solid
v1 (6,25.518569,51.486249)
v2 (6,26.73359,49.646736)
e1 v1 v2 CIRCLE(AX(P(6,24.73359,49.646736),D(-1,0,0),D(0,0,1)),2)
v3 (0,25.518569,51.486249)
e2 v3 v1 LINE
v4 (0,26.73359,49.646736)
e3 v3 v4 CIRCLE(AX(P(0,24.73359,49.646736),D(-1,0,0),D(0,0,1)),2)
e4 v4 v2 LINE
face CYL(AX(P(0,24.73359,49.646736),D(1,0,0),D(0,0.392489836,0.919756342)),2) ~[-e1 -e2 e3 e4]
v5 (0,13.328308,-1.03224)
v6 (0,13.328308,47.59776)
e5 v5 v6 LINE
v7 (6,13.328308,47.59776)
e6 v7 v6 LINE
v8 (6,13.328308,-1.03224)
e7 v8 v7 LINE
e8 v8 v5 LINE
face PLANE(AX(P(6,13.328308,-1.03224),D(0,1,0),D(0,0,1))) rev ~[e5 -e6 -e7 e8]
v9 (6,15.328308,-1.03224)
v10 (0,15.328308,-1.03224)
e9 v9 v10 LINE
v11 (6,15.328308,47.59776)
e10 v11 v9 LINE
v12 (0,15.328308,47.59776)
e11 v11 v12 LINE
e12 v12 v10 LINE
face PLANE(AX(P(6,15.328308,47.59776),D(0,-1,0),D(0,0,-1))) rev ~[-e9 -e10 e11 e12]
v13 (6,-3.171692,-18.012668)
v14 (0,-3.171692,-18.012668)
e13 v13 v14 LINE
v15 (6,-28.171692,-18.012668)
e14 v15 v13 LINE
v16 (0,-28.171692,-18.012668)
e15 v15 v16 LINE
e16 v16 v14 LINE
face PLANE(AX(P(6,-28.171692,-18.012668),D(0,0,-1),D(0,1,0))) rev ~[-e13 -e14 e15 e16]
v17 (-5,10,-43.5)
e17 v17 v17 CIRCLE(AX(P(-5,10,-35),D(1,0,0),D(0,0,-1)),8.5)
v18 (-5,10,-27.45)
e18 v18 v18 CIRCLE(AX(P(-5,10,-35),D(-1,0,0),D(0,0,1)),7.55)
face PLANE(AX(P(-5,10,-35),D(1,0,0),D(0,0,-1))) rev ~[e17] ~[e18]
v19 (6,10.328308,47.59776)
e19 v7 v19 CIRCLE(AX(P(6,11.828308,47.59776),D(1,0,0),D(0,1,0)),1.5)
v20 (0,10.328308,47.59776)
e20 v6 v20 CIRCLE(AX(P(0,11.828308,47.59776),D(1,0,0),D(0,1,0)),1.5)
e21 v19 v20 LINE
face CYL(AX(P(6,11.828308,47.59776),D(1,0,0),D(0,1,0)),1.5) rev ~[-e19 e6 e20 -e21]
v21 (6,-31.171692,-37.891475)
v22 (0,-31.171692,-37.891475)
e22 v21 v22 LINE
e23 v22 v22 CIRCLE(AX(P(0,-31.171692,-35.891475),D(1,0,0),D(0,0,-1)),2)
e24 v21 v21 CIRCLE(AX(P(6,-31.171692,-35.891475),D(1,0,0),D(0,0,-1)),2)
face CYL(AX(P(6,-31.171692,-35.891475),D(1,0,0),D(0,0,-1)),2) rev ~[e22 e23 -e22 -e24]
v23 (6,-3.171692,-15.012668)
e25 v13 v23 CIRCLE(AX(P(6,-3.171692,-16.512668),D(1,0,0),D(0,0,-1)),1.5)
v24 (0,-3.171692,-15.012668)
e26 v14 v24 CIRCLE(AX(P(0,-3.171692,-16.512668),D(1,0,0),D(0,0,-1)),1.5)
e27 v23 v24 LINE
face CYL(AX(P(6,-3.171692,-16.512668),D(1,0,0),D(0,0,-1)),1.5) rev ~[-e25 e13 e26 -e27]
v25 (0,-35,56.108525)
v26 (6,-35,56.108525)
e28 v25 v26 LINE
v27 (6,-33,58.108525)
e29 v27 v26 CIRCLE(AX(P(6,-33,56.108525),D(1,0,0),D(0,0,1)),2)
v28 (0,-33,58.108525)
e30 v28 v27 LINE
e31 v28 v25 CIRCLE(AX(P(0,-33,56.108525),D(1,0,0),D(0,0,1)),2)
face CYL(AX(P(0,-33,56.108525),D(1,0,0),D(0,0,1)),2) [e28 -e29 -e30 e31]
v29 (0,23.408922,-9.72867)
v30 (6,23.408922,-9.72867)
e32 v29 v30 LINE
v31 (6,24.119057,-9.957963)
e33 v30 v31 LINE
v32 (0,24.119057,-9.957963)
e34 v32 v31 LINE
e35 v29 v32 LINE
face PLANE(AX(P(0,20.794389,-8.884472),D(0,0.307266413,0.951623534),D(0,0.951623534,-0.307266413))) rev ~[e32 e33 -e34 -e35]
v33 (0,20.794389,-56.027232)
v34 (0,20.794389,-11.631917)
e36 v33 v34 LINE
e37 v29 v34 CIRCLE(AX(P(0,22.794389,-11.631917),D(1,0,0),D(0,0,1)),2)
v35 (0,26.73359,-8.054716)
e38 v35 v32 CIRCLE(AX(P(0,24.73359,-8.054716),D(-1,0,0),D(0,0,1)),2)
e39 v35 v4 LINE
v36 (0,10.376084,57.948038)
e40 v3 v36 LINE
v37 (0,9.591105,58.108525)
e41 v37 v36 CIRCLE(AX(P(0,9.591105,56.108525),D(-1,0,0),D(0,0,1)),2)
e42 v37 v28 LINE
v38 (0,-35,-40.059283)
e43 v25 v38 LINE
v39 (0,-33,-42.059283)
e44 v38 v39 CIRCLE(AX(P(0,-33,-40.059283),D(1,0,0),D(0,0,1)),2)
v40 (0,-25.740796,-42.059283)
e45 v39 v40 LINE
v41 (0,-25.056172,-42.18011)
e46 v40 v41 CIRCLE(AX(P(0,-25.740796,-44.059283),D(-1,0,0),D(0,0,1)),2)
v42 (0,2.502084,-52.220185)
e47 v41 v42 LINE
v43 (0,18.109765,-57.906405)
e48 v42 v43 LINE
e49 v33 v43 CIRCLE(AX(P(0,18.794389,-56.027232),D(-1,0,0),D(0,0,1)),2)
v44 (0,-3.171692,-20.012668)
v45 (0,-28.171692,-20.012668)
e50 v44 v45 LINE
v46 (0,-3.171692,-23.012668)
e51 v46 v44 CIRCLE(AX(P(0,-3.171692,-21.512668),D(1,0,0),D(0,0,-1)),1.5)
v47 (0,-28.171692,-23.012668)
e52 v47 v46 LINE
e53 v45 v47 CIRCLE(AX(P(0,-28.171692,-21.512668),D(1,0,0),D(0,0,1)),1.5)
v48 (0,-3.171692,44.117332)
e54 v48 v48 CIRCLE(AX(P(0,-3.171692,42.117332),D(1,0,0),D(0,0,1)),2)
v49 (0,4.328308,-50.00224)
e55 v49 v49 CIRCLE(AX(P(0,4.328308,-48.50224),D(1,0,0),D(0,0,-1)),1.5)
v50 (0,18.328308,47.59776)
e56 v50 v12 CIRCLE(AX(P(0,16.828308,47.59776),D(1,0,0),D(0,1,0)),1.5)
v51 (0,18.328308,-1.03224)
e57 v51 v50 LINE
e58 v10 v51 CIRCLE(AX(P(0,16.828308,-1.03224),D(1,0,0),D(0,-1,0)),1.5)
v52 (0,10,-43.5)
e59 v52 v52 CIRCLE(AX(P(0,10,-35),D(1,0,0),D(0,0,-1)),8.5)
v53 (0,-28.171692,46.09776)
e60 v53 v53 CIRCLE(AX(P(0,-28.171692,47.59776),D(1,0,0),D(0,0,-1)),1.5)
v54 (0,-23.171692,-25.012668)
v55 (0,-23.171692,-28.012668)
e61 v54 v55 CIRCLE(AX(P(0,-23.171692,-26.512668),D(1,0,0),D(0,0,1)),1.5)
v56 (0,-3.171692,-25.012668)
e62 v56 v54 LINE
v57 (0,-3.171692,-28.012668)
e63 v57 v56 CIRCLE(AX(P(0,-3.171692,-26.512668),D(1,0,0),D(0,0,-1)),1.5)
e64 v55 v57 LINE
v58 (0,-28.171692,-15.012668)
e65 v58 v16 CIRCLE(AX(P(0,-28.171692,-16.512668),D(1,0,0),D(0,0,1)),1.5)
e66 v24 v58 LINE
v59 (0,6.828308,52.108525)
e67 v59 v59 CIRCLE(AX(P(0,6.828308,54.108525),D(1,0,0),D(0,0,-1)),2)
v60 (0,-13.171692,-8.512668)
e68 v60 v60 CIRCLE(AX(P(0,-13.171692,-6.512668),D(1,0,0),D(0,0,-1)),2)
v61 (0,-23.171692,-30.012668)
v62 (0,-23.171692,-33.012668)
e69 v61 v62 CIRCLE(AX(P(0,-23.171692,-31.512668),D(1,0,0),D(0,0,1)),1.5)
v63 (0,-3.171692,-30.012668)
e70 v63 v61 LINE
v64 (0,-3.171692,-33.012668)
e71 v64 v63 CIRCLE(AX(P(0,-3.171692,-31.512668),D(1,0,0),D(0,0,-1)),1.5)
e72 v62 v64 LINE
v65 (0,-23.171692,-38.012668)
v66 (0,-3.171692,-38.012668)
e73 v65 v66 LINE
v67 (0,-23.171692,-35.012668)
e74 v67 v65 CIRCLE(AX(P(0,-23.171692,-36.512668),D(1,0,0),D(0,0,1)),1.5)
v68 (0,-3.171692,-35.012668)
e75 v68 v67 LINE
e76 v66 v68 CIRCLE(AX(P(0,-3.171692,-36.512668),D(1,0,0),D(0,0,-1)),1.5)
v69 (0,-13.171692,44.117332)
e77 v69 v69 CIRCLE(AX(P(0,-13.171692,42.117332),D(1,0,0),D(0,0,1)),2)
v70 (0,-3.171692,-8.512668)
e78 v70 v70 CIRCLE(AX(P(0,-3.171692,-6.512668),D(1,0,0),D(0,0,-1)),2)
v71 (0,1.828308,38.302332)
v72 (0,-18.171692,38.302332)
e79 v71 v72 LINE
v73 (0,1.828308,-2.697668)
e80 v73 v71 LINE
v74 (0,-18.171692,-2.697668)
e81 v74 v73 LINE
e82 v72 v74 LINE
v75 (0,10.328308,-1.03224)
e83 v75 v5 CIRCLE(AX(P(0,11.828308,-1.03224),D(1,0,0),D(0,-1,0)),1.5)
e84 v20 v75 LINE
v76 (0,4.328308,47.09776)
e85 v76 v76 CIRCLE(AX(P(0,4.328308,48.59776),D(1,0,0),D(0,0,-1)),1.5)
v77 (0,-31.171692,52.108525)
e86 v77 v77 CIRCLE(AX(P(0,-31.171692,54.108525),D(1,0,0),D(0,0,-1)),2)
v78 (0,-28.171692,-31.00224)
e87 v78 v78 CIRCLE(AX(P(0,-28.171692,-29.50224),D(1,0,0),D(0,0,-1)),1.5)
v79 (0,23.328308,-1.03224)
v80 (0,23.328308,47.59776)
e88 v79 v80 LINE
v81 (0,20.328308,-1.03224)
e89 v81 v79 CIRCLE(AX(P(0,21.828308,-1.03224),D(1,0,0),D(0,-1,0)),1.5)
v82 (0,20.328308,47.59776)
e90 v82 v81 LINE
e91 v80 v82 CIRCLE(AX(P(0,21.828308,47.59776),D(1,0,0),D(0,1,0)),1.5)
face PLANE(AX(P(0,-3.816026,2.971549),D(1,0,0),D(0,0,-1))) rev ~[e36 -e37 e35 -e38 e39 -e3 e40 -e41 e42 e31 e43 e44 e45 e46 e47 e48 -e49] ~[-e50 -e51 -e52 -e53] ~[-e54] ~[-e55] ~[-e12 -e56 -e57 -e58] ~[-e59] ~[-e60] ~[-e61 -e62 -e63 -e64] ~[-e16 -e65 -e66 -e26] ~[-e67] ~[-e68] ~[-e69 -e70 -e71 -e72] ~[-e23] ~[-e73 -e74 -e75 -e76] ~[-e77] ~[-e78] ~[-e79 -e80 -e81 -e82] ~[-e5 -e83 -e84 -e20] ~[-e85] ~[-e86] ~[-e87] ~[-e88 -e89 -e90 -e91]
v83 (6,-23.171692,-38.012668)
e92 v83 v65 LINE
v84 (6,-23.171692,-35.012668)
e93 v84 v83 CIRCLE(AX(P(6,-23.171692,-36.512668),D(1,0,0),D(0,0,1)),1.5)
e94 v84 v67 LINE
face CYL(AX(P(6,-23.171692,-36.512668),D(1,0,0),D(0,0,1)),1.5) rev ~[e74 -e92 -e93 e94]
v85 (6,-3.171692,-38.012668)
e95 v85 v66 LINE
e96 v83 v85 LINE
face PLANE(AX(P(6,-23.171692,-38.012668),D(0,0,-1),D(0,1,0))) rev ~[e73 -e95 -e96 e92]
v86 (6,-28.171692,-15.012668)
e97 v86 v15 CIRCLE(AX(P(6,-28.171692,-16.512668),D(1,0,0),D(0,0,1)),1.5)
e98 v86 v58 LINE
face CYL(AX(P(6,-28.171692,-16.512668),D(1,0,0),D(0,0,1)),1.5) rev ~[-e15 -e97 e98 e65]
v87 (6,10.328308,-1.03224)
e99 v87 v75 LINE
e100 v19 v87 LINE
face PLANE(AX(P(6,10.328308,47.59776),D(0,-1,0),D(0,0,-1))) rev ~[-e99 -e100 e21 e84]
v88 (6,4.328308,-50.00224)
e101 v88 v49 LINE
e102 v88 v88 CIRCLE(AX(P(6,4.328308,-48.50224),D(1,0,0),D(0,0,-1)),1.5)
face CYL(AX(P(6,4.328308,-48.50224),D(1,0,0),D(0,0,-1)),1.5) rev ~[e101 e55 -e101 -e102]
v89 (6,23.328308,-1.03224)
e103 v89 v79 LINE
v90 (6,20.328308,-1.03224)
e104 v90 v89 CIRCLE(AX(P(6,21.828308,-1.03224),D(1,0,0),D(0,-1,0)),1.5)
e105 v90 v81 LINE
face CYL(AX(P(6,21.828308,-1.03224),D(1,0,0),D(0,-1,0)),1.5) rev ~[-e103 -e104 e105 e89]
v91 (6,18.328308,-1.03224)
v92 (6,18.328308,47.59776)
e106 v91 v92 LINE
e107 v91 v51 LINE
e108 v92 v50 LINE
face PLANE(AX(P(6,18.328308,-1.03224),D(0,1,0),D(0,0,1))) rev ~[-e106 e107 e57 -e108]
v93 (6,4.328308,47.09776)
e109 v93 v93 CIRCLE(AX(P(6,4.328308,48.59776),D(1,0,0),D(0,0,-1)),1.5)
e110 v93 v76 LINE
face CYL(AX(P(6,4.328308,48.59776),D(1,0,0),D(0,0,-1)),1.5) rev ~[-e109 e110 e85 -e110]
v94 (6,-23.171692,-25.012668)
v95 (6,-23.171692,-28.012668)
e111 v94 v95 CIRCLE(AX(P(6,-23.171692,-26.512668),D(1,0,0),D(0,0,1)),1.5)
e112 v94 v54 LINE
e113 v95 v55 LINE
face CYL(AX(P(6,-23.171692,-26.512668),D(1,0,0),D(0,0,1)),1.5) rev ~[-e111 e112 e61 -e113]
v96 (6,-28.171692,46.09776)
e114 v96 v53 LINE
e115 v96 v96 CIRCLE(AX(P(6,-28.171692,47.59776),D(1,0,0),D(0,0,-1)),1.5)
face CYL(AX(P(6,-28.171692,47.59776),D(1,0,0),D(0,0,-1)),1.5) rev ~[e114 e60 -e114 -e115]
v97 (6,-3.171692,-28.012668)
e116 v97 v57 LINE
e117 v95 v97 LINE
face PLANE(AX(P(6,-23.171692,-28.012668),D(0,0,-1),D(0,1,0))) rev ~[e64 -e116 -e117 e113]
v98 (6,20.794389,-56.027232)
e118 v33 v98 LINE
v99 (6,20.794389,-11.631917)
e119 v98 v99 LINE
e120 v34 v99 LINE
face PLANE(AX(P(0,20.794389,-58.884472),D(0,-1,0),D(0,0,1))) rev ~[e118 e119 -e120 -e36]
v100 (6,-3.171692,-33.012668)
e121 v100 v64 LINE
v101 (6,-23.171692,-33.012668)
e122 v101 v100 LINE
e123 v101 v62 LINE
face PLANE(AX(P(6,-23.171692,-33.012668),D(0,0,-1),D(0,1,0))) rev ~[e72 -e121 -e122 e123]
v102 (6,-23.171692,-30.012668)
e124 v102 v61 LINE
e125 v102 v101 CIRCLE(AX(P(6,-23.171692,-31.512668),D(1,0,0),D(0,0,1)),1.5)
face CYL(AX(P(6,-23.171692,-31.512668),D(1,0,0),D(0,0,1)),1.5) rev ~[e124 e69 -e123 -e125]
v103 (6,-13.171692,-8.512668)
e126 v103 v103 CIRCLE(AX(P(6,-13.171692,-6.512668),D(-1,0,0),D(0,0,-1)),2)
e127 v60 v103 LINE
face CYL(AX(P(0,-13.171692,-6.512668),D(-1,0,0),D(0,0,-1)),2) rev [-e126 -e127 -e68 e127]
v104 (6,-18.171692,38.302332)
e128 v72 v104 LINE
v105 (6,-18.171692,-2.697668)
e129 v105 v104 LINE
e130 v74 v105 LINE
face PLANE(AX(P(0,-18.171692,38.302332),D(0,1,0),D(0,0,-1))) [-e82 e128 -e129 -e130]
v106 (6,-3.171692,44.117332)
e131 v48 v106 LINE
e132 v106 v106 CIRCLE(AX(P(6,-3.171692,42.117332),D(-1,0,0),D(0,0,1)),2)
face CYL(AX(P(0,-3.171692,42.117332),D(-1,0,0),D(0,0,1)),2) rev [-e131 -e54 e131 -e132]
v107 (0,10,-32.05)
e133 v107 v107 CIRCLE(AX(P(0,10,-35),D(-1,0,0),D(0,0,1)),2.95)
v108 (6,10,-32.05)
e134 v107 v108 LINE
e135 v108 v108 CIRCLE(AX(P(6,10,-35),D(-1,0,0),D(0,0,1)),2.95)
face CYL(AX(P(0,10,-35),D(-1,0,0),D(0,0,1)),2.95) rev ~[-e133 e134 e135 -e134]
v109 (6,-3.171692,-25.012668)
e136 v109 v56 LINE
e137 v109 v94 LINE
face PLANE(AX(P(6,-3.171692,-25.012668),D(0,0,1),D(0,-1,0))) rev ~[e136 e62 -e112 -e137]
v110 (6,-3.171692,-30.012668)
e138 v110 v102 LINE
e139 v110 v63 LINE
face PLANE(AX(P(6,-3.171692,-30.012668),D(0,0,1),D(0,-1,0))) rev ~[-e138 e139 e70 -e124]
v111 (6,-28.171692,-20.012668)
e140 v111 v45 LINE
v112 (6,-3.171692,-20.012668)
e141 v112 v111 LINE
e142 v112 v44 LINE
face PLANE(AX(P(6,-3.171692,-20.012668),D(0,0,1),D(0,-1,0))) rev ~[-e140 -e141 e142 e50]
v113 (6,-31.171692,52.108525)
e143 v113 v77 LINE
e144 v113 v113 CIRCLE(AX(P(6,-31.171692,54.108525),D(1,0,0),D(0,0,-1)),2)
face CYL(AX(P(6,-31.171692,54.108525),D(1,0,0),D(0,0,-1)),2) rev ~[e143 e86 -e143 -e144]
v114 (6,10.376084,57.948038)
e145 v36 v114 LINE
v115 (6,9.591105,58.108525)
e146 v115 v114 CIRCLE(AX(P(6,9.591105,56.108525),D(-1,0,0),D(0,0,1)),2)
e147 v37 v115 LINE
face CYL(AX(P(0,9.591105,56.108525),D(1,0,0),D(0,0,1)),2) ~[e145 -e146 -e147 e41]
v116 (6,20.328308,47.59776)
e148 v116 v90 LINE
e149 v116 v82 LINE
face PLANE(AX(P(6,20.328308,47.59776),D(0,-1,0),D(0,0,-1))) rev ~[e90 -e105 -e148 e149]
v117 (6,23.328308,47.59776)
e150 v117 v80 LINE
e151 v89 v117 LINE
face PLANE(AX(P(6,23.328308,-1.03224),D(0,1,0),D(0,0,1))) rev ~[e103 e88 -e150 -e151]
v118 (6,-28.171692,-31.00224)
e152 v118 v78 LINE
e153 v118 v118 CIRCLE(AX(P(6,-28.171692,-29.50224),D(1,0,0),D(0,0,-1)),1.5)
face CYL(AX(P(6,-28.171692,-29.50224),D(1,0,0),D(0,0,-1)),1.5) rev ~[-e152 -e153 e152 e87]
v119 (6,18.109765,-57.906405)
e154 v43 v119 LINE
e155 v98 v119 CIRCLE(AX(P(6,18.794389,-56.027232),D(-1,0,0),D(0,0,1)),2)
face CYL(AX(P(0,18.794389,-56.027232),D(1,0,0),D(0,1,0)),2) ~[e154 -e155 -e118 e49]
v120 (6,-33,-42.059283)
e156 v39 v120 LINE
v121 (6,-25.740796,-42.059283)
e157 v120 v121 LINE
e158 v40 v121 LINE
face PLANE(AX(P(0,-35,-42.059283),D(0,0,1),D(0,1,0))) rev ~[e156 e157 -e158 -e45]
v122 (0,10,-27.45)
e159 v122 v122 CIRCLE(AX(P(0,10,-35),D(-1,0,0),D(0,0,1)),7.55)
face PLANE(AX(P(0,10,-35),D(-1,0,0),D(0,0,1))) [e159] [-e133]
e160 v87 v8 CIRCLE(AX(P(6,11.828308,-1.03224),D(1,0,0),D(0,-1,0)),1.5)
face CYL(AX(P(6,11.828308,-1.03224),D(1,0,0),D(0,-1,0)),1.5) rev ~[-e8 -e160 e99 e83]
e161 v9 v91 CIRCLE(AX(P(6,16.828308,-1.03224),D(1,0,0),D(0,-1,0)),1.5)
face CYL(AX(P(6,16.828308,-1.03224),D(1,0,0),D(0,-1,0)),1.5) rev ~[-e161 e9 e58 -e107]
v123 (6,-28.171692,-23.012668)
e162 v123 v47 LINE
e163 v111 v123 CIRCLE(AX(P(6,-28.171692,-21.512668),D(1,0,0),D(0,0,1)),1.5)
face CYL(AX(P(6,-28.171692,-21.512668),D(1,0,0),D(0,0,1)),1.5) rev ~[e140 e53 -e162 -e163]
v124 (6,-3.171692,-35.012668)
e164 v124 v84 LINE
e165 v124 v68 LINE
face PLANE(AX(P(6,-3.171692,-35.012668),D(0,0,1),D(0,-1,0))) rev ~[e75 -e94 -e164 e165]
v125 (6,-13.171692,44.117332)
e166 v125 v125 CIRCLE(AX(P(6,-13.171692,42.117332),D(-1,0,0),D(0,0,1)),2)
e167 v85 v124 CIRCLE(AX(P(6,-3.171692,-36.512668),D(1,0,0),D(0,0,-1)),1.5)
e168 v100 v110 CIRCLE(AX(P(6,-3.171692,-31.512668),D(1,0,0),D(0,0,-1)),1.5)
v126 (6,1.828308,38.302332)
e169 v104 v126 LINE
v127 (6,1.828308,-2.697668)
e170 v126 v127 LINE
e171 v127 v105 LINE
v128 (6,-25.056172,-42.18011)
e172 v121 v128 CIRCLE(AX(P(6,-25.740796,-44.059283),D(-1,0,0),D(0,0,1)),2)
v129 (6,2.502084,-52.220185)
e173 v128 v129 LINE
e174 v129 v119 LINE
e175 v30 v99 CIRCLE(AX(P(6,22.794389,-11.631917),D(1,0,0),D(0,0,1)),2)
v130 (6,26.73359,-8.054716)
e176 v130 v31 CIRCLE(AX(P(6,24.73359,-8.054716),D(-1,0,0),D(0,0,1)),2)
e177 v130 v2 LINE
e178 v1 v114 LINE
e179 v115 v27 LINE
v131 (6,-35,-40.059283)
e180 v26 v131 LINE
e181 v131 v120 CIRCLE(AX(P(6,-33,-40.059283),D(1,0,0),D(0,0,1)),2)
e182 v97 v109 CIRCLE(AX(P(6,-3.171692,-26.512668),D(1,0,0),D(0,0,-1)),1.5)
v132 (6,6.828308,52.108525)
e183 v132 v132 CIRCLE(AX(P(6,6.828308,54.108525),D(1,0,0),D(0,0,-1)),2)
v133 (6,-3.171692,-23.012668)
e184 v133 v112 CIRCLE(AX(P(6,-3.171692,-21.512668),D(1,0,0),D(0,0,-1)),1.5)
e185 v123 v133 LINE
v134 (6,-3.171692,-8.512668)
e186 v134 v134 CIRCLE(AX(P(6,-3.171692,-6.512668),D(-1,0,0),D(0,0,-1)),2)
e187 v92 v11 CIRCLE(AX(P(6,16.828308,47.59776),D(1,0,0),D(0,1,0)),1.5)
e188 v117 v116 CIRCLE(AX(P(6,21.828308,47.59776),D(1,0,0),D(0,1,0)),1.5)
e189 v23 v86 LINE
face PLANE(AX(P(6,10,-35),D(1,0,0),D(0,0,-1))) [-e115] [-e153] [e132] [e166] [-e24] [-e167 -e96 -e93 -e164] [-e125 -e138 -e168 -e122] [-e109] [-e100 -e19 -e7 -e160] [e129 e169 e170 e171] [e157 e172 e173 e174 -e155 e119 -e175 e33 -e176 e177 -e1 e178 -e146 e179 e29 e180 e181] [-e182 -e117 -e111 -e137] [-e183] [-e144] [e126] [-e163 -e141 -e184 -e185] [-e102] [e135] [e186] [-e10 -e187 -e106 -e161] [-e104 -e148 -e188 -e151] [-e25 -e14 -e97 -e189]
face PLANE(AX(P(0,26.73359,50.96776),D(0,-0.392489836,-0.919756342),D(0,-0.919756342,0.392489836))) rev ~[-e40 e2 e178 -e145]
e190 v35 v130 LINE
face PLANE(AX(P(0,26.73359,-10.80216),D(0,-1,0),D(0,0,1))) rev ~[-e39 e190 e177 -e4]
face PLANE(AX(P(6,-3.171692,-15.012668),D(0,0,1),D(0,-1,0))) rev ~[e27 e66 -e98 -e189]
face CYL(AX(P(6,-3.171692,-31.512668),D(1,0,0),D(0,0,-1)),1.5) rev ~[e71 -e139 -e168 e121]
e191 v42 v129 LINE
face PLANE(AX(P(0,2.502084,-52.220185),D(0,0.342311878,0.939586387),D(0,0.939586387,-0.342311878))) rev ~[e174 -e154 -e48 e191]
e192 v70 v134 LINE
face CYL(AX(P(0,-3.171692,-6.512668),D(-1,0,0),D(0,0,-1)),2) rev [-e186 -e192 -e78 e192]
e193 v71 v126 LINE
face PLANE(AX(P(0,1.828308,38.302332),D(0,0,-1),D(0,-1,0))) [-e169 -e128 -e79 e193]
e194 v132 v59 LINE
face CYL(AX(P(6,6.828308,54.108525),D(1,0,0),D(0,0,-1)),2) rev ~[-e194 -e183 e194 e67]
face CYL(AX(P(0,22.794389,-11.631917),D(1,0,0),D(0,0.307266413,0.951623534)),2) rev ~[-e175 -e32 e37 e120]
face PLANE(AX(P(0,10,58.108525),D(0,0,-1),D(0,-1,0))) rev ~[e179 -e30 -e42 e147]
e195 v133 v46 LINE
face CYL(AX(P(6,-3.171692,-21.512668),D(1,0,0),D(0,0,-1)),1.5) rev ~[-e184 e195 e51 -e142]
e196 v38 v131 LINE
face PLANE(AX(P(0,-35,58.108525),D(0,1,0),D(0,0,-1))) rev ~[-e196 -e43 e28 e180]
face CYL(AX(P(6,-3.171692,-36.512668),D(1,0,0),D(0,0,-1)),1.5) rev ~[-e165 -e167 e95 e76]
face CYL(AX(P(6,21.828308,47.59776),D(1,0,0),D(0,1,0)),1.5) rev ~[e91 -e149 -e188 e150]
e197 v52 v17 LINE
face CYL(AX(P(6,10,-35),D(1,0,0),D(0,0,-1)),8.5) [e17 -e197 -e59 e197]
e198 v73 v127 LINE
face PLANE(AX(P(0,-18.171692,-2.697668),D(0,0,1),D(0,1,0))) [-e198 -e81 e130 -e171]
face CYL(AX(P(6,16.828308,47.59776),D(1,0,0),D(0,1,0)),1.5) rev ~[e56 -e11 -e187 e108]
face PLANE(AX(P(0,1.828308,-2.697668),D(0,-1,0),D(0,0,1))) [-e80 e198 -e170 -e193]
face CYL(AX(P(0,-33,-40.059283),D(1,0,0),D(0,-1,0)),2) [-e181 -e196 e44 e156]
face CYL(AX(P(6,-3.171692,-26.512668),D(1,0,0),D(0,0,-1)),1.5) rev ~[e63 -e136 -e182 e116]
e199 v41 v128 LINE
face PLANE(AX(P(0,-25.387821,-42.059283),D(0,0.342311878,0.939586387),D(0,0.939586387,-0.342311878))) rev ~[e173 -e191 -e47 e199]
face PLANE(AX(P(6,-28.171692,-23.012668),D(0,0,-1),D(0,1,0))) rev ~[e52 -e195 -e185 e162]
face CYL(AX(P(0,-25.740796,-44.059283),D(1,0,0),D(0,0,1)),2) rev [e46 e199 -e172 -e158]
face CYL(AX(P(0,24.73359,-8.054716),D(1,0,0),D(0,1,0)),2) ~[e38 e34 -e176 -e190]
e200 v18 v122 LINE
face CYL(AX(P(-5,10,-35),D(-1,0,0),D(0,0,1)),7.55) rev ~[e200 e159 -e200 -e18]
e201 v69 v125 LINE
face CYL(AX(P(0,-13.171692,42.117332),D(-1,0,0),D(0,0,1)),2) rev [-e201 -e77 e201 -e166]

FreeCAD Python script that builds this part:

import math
import FreeCAD as App
import Part
import Sketcher
Q = App.Units.Quantity


def edges_at(feature, points):
    """Names of the edges that pass closest to the given points."""
    edges = feature.Shape.Edges
    near = lambda p: min(range(len(edges)), key=lambda i: edges[i].distToShape(Part.Vertex(*p))[0])
    return sorted({f"Edge{near(p) + 1}" for p in points})

doc = App.newDocument("Part")
body = doc.addObject("PartDesign::Body", "Body")

# Sketch on YZ plane
sketch1 = doc.addObject("Sketcher::SketchObject", "Sketch")
body.addObject(sketch1)
sketch1.AttachmentSupport = (doc.YZ_Plane, [""])
sketch1.MapMode = "FlatFace"
sketch1.addGeometry(Part.LineSegment(App.Vector(10, 58.108525, 0), App.Vector(-35, 58.108525, 0)), False)
sketch1.addGeometry(Part.LineSegment(App.Vector(-35, 58.108525, 0), App.Vector(-35, -42.059283, 0)), False)
sketch1.addGeometry(Part.LineSegment(App.Vector(-35, -42.059283, 0), App.Vector(-25.387821, -42.059283, 0)), False)
sketch1.addGeometry(Part.LineSegment(App.Vector(-25.387821, -42.059283, 0), App.Vector(2.502084, -52.220185, 0)), False)
sketch1.addGeometry(Part.LineSegment(App.Vector(2.502084, -52.220185, 0), App.Vector(20.794389, -58.884472, 0)), False)
sketch1.addGeometry(Part.LineSegment(App.Vector(20.794389, -58.884472, 0), App.Vector(20.794389, -8.884472, 0)), False)
sketch1.addGeometry(Part.LineSegment(App.Vector(20.794389, -8.884472, 0), App.Vector(26.73359, -10.80216, 0)), False)
sketch1.addGeometry(Part.LineSegment(App.Vector(26.73359, -10.80216, 0), App.Vector(26.73359, 50.96776, 0)), False)
sketch1.addGeometry(Part.LineSegment(App.Vector(26.73359, 50.96776, 0), App.Vector(10, 58.108525, 0)), False)
sketch1.addConstraint(Sketcher.Constraint("Coincident", 0, 2, 1, 1))
sketch1.addConstraint(Sketcher.Constraint("Coincident", 1, 2, 2, 1))
sketch1.addConstraint(Sketcher.Constraint("Coincident", 2, 2, 3, 1))
sketch1.addConstraint(Sketcher.Constraint("Coincident", 3, 2, 4, 1))
sketch1.addConstraint(Sketcher.Constraint("Coincident", 4, 2, 5, 1))
sketch1.addConstraint(Sketcher.Constraint("Coincident", 5, 2, 6, 1))
sketch1.addConstraint(Sketcher.Constraint("Coincident", 6, 2, 7, 1))
sketch1.addConstraint(Sketcher.Constraint("Coincident", 7, 2, 8, 1))
sketch1.addConstraint(Sketcher.Constraint("Coincident", 8, 2, 0, 1))
sketch1.addConstraint(Sketcher.Constraint("Horizontal", 0))
sketch1.addConstraint(Sketcher.Constraint("Vertical", 1))
sketch1.addConstraint(Sketcher.Constraint("Horizontal", 2))
sketch1.addConstraint(Sketcher.Constraint("Vertical", 5))
sketch1.addConstraint(Sketcher.Constraint("Vertical", 7))
sketch1.addConstraint(Sketcher.Constraint("Parallel", 3, 4))
sketch1.addConstraint(Sketcher.Constraint("DistanceX", 0, 2, 0, 1, Q("45 mm")))
sketch1.addConstraint(Sketcher.Constraint("DistanceY", 5, 1, 5, 2, Q("50 mm")))
sketch1.addConstraint(Sketcher.Constraint("DistanceX", 0, 2, -1, 1, Q("35 mm")))
sketch1.addConstraint(Sketcher.Constraint("DistanceX", 2, 1, 2, 2, Q("9.612179 mm")))
sketch1.addConstraint(Sketcher.Constraint("DistanceY", 1, 2, 1, 1, Q("100.167808 mm")))
sketch1.addConstraint(Sketcher.Constraint("DistanceY", 7, 1, 7, 2, Q("61.769921 mm")))
sketch1.addConstraint(Sketcher.Constraint("DistanceX", 5, 2, 6, 2, Q("5.939201 mm")))
sketch1.addConstraint(Sketcher.Constraint("DistanceX", -1, 1, 4, 2, Q("20.794389 mm")))
sketch1.addConstraint(Sketcher.Constraint("DistanceY", 6, 2, -1, 1, Q("10.80216 mm")))
sketch1.addConstraint(Sketcher.Constraint("DistanceY", 3, 2, 0, 2, Q("110.328711 mm")))
sketch1.addConstraint(Sketcher.Constraint("DistanceY", 4, 2, 2, 2, Q("16.82519 mm")))
sketch1.addConstraint(Sketcher.Constraint("Distance", 6, Q("6.241124 mm")))
pad1 = doc.addObject("PartDesign::Pad", "Pad")
body.addObject(pad1)
pad1.Profile = sketch1
pad1.Length = 6

# Sketch on YZ plane
sketch2 = doc.addObject("Sketcher::SketchObject", "Sketch001")
body.addObject(sketch2)
sketch2.AttachmentSupport = (doc.YZ_Plane, [""])
sketch2.MapMode = "FlatFace"
sketch2.addGeometry(Part.Circle(App.Vector(-3.171692, -6.512668, 0), App.Vector(0, 0, 1), 2), False)
sketch2.addGeometry(Part.Circle(App.Vector(-13.171692, -6.512668, 0), App.Vector(0, 0, 1), 2), False)
sketch2.addGeometry(Part.Circle(App.Vector(-13.171692, 42.117332, 0), App.Vector(0, 0, 1), 2), False)
sketch2.addGeometry(Part.Circle(App.Vector(-3.171692, 42.117332, 0), App.Vector(0, 0, 1), 2), False)
sketch2.addGeometry(Part.LineSegment(App.Vector(1.828308, 38.302332, 0), App.Vector(-18.171692, 38.302332, 0)), False)
sketch2.addGeometry(Part.LineSegment(App.Vector(-18.171692, 38.302332, 0), App.Vector(-18.171692, -2.697668, 0)), False)
sketch2.addGeometry(Part.LineSegment(App.Vector(-18.171692, -2.697668, 0), App.Vector(1.828308, -2.697668, 0)), False)
sketch2.addGeometry(Part.LineSegment(App.Vector(1.828308, -2.697668, 0), App.Vector(1.828308, 38.302332, 0)), False)
sketch2.addConstraint(Sketcher.Constraint("Coincident", 4, 2, 5, 1))
sketch2.addConstraint(Sketcher.Constraint("Coincident", 5, 2, 6, 1))
sketch2.addConstraint(Sketcher.Constraint("Coincident", 6, 2, 7, 1))
sketch2.addConstraint(Sketcher.Constraint("Coincident", 7, 2, 4, 1))
sketch2.addConstraint(Sketcher.Constraint("Horizontal", 4))
sketch2.addConstraint(Sketcher.Constraint("Vertical", 5))
sketch2.addConstraint(Sketcher.Constraint("Horizontal", 6))
sketch2.addConstraint(Sketcher.Constraint("Vertical", 7))
sketch2.addConstraint(Sketcher.Constraint("Equal", 0, 1))
sketch2.addConstraint(Sketcher.Constraint("Equal", 1, 2))
sketch2.addConstraint(Sketcher.Constraint("Equal", 2, 3))
sketch2.addConstraint(Sketcher.Constraint("Horizontal", 0, 3, 1, 3))
sketch2.addConstraint(Sketcher.Constraint("Horizontal", 2, 3, 3, 3))
sketch2.addConstraint(Sketcher.Constraint("Vertical", 1, 3, 2, 3))
sketch2.addConstraint(Sketcher.Constraint("Vertical", 0, 3, 3, 3))
sketch2.addConstraint(Sketcher.Constraint("Diameter", 0, Q("4 mm")))
sketch2.addConstraint(Sketcher.Constraint("DistanceX", 4, 2, 4, 1, Q("20 mm")))
sketch2.addConstraint(Sketcher.Constraint("DistanceY", 5, 2, 5, 1, Q("41 mm")))
sketch2.addConstraint(Sketcher.Constraint("DistanceX", 1, 3, 0, 3, Q("10 mm")))
sketch2.addConstraint(Sketcher.Constraint("DistanceX", 4, 2, 2, 3, Q("5 mm")))
sketch2.addConstraint(Sketcher.Constraint("DistanceY", 1, 3, 2, 3, Q("48.63 mm")))
sketch2.addConstraint(Sketcher.Constraint("DistanceY", 4, 2, 2, 3, Q("3.815 mm")))
sketch2.addConstraint(Sketcher.Constraint("DistanceX", 0, 3, -1, 1, Q("3.171692 mm")))
sketch2.addConstraint(Sketcher.Constraint("DistanceY", 0, 3, -1, 1, Q("6.512668 mm")))
pocket1 = doc.addObject("PartDesign::Pocket", "Pocket")
body.addObject(pocket1)
pocket1.Profile = sketch2
pocket1.Length = 10
pocket1.Reversed = True

# Sketch on YZ plane
sketch3 = doc.addObject("Sketcher::SketchObject", "Sketch002")
body.addObject(sketch3)
sketch3.AttachmentSupport = (doc.YZ_Plane, [""])
sketch3.MapMode = "FlatFace"
sketch3.AttachmentOffset = App.Placement(App.Vector(0, 0, 6), App.Rotation())
sketch3.addGeometry(Part.Circle(App.Vector(4.328308, 48.59776, 0), App.Vector(0, 0, 1), 1.5), False)
sketch3.addGeometry(Part.Circle(App.Vector(4.328308, -48.50224, 0), App.Vector(0, 0, 1), 1.5), False)
sketch3.addConstraint(Sketcher.Constraint("Equal", 0, 1))
sketch3.addConstraint(Sketcher.Constraint("Vertical", 0, 3, 1, 3))
sketch3.addConstraint(Sketcher.Constraint("Diameter", 0, Q("3 mm")))
sketch3.addConstraint(Sketcher.Constraint("DistanceY", 1, 3, 0, 3, Q("97.1 mm")))
sketch3.addConstraint(Sketcher.Constraint("DistanceX", -1, 1, 0, 3, Q("4.328308 mm")))
sketch3.addConstraint(Sketcher.Constraint("DistanceY", -1, 1, 0, 3, Q("48.59776 mm")))
pocket2 = doc.addObject("PartDesign::Pocket", "Pocket001")
body.addObject(pocket2)
pocket2.Profile = sketch3
pocket2.Length = 6

# Sketch on YZ plane
sketch4 = doc.addObject("Sketcher::SketchObject", "Sketch003")
body.addObject(sketch4)
sketch4.AttachmentSupport = (doc.YZ_Plane, [""])
sketch4.MapMode = "FlatFace"
sketch4.AttachmentOffset = App.Placement(App.Vector(0, 0, 6), App.Rotation())
sketch4.addGeometry(Part.Circle(App.Vector(6.828308, 54.108525, 0), App.Vector(0, 0, 1), 2), False)
sketch4.addGeometry(Part.Circle(App.Vector(-31.171692, -35.891475, 0), App.Vector(0, 0, 1), 2), False)
sketch4.addGeometry(Part.Circle(App.Vector(-31.171692, 54.108525, 0), App.Vector(0, 0, 1), 2), False)
sketch4.addGeometry(Part.LineSegment(App.Vector(18.328308, -1.03224, 0), App.Vector(18.328308, 47.59776, 0)), False)
sketch4.addGeometry(Part.ArcOfCircle(Part.Circle(App.Vector(16.828308, 47.59776, 0), App.Vector(0, 0, 1), 1.5), math.radians(0), math.radians(180)), False)
sketch4.addGeometry(Part.LineSegment(App.Vector(15.328308, 47.59776, 0), App.Vector(15.328308, -1.03224, 0)), False)
sketch4.addGeometry(Part.ArcOfCircle(Part.Circle(App.Vector(16.828308, -1.03224, 0), App.Vector(0, 0, 1), 1.5), math.radians(180), math.radians(360)), False)
sketch4.addGeometry(Part.LineSegment(App.Vector(23.328308, -1.03224, 0), App.Vector(23.328308, 47.59776, 0)), False)
sketch4.addGeometry(Part.ArcOfCircle(Part.Circle(App.Vector(21.828308, 47.59776, 0), App.Vector(0, 0, 1), 1.5), math.radians(0), math.radians(180)), False)
sketch4.addGeometry(Part.LineSegment(App.Vector(20.328308, 47.59776, 0), App.Vector(20.328308, -1.03224, 0)), False)
sketch4.addGeometry(Part.ArcOfCircle(Part.Circle(App.Vector(21.828308, -1.03224, 0), App.Vector(0, 0, 1), 1.5), math.radians(180), math.radians(360)), False)
sketch4.addGeometry(Part.LineSegment(App.Vector(13.328308, -1.03224, 0), App.Vector(13.328308, 47.59776, 0)), False)
sketch4.addGeometry(Part.ArcOfCircle(Part.Circle(App.Vector(11.828308, 47.59776, 0), App.Vector(0, 0, 1), 1.5), math.radians(0), math.radians(180)), False)
sketch4.addGeometry(Part.LineSegment(App.Vector(10.328308, 47.59776, 0), App.Vector(10.328308, -1.03224, 0)), False)
sketch4.addGeometry(Part.ArcOfCircle(Part.Circle(App.Vector(11.828308, -1.03224, 0), App.Vector(0, 0, 1), 1.5), math.radians(180), math.radians(360)), False)
sketch4.addGeometry(Part.ArcOfCircle(Part.Circle(App.Vector(-3.171692, -16.512668, 0), App.Vector(0, 0, 1), 1.5), math.radians(-90), math.radians(90)), False)
sketch4.addGeometry(Part.LineSegment(App.Vector(-3.171692, -15.012668, 0), App.Vector(-28.171692, -15.012668, 0)), False)
sketch4.addGeometry(Part.ArcOfCircle(Part.Circle(App.Vector(-28.171692, -16.512668, 0), App.Vector(0, 0, 1), 1.5), math.radians(90), math.radians(270)), False)
sketch4.addGeometry(Part.LineSegment(App.Vector(-28.171692, -18.012668, 0), App.Vector(-3.171692, -18.012668, 0)), False)
sketch4.addGeometry(Part.ArcOfCircle(Part.Circle(App.Vector(-3.171692, -21.512668, 0), App.Vector(0, 0, 1), 1.5), math.radians(-90), math.radians(90)), False)
sketch4.addGeometry(Part.LineSegment(App.Vector(-3.171692, -20.012668, 0), App.Vector(-28.171692, -20.012668, 0)), False)
sketch4.addGeometry(Part.ArcOfCircle(Part.Circle(App.Vector(-28.171692, -21.512668, 0), App.Vector(0, 0, 1), 1.5), math.radians(90), math.radians(270)), False)
sketch4.addGeometry(Part.LineSegment(App.Vector(-28.171692, -23.012668, 0), App.Vector(-3.171692, -23.012668, 0)), False)
sketch4.addGeometry(Part.ArcOfCircle(Part.Circle(App.Vector(-3.171692, -36.512668, 0), App.Vector(0, 0, 1), 1.5), math.radians(-90), math.radians(90)), False)
sketch4.addGeometry(Part.LineSegment(App.Vector(-3.171692, -35.012668, 0), App.Vector(-23.171692, -35.012668, 0)), False)
sketch4.addGeometry(Part.ArcOfCircle(Part.Circle(App.Vector(-23.171692, -36.512668, 0), App.Vector(0, 0, 1), 1.5), math.radians(90), math.radians(270)), False)
sketch4.addGeometry(Part.LineSegment(App.Vector(-23.171692, -38.012668, 0), App.Vector(-3.171692, -38.012668, 0)), False)
sketch4.addGeometry(Part.ArcOfCircle(Part.Circle(App.Vector(-3.171692, -26.512668, 0), App.Vector(0, 0, 1), 1.5), math.radians(-90), math.radians(90)), False)
sketch4.addGeometry(Part.LineSegment(App.Vector(-3.171692, -25.012668, 0), App.Vector(-23.171692, -25.012668, 0)), False)
sketch4.addGeometry(Part.ArcOfCircle(Part.Circle(App.Vector(-23.171692, -26.512668, 0), App.Vector(0, 0, 1), 1.5), math.radians(90), math.radians(270)), False)
sketch4.addGeometry(Part.LineSegment(App.Vector(-23.171692, -28.012668, 0), App.Vector(-3.171692, -28.012668, 0)), False)
sketch4.addGeometry(Part.ArcOfCircle(Part.Circle(App.Vector(-3.171692, -31.512668, 0), App.Vector(0, 0, 1), 1.5), math.radians(-90), math.radians(90)), False)
sketch4.addGeometry(Part.LineSegment(App.Vector(-3.171692, -30.012668, 0), App.Vector(-23.171692, -30.012668, 0)), False)
sketch4.addGeometry(Part.ArcOfCircle(Part.Circle(App.Vector(-23.171692, -31.512668, 0), App.Vector(0, 0, 1), 1.5), math.radians(90), math.radians(270)), False)
sketch4.addGeometry(Part.LineSegment(App.Vector(-23.171692, -33.012668, 0), App.Vector(-3.171692, -33.012668, 0)), False)
sketch4.addGeometry(Part.Circle(App.Vector(-28.171692, 47.59776, 0), App.Vector(0, 0, 1), 1.5), False)
sketch4.addGeometry(Part.Circle(App.Vector(-28.171692, -29.50224, 0), App.Vector(0, 0, 1), 1.5), False)
sketch4.addConstraint(Sketcher.Constraint("Tangent", 3, 2, 4, 1))
sketch4.addConstraint(Sketcher.Constraint("Tangent", 4, 2, 5, 1))
sketch4.addConstraint(Sketcher.Constraint("Tangent", 5, 2, 6, 1))
sketch4.addConstraint(Sketcher.Constraint("Tangent", 6, 2, 3, 1))
sketch4.addConstraint(Sketcher.Constraint("Tangent", 7, 2, 8, 1))
sketch4.addConstraint(Sketcher.Constraint("Tangent", 8, 2, 9, 1))
sketch4.addConstraint(Sketcher.Constraint("Tangent", 9, 2, 10, 1))
sketch4.addConstraint(Sketcher.Constraint("Tangent", 10, 2, 7, 1))
sketch4.addConstraint(Sketcher.Constraint("Tangent", 11, 2, 12, 1))
sketch4.addConstraint(Sketcher.Constraint("Tangent", 12, 2, 13, 1))
sketch4.addConstraint(Sketcher.Constraint("Tangent", 13, 2, 14, 1))
sketch4.addConstraint(Sketcher.Constraint("Tangent", 14, 2, 11, 1))
sketch4.addConstraint(Sketcher.Constraint("Tangent", 15, 2, 16, 1))
sketch4.addConstraint(Sketcher.Constraint("Tangent", 16, 2, 17, 1))
sketch4.addConstraint(Sketcher.Constraint("Tangent", 17, 2, 18, 1))
sketch4.addConstraint(Sketcher.Constraint("Tangent", 18, 2, 15, 1))
sketch4.addConstraint(Sketcher.Constraint("Tangent", 19, 2, 20, 1))
sketch4.addConstraint(Sketcher.Constraint("Tangent", 20, 2, 21, 1))
sketch4.addConstraint(Sketcher.Constraint("Tangent", 21, 2, 22, 1))
sketch4.addConstraint(Sketcher.Constraint("Tangent", 22, 2, 19, 1))
sketch4.addConstraint(Sketcher.Constraint("Tangent", 23, 2, 24, 1))
sketch4.addConstraint(Sketcher.Constraint("Tangent", 24, 2, 25, 1))
sketch4.addConstraint(Sketcher.Constraint("Tangent", 25, 2, 26, 1))
sketch4.addConstraint(Sketcher.Constraint("Tangent", 26, 2, 23, 1))
sketch4.addConstraint(Sketcher.Constraint("Tangent", 27, 2, 28, 1))
sketch4.addConstraint(Sketcher.Constraint("Tangent", 28, 2, 29, 1))
sketch4.addConstraint(Sketcher.Constraint("Tangent", 29, 2, 30, 1))
sketch4.addConstraint(Sketcher.Constraint("Tangent", 30, 2, 27, 1))
sketch4.addConstraint(Sketcher.Constraint("Tangent", 31, 2, 32, 1))
sketch4.addConstraint(Sketcher.Constraint("Tangent", 32, 2, 33, 1))
sketch4.addConstraint(Sketcher.Constraint("Tangent", 33, 2, 34, 1))
sketch4.addConstraint(Sketcher.Constraint("Tangent", 34, 2, 31, 1))
sketch4.addConstraint(Sketcher.Constraint("Vertical", 3))
sketch4.addConstraint(Sketcher.Constraint("Vertical", 5))
sketch4.addConstraint(Sketcher.Constraint("Vertical", 7))
sketch4.addConstraint(Sketcher.Constraint("Vertical", 9))
sketch4.addConstraint(Sketcher.Constraint("Vertical", 11))
sketch4.addConstraint(Sketcher.Constraint("Vertical", 13))
sketch4.addConstraint(Sketcher.Constraint("Horizontal", 16))
sketch4.addConstraint(Sketcher.Constraint("Horizontal", 18))
sketch4.addConstraint(Sketcher.Constraint("Horizontal", 20))
sketch4.addConstraint(Sketcher.Constraint("Horizontal", 22))
sketch4.addConstraint(Sketcher.Constraint("Horizontal", 24))
sketch4.addConstraint(Sketcher.Constraint("Horizontal", 26))
sketch4.addConstraint(Sketcher.Constraint("Horizontal", 28))
sketch4.addConstraint(Sketcher.Constraint("Horizontal", 30))
sketch4.addConstraint(Sketcher.Constraint("Horizontal", 32))
sketch4.addConstraint(Sketcher.Constraint("Horizontal", 34))
sketch4.addConstraint(Sketcher.Constraint("Equal", 0, 1))
sketch4.addConstraint(Sketcher.Constraint("Equal", 1, 2))
sketch4.addConstraint(Sketcher.Constraint("Equal", 6, 8))
sketch4.addConstraint(Sketcher.Constraint("Equal", 10, 12))
sketch4.addConstraint(Sketcher.Constraint("Equal", 14, 15))
sketch4.addConstraint(Sketcher.Constraint("Equal", 17, 19))
sketch4.addConstraint(Sketcher.Constraint("Equal", 21, 23))
sketch4.addConstraint(Sketcher.Constraint("Equal", 25, 27))
sketch4.addConstraint(Sketcher.Constraint("Equal", 29, 31))
sketch4.addConstraint(Sketcher.Constraint("Equal", 33, 35))
sketch4.addConstraint(Sketcher.Constraint("Equal", 35, 36))
sketch4.addConstraint(Sketcher.Constraint("Horizontal", 0, 3, 2, 3))
sketch4.addConstraint(Sketcher.Constraint("Horizontal", 4, 3, 8, 3))
sketch4.addConstraint(Sketcher.Constraint("Horizontal", 6, 3, 10, 3))
sketch4.addConstraint(Sketcher.Constraint("Horizontal", 8, 3, 12, 3))
sketch4.addConstraint(Sketcher.Constraint("Horizontal", 10, 3, 14, 3))
sketch4.addConstraint(Sketcher.Constraint("Horizontal", 12, 3, 35, 3))
sketch4.addConstraint(Sketcher.Constraint("Vertical", 1, 3, 2, 3))
sketch4.addConstraint(Sketcher.Constraint("Vertical", 15, 3, 19, 3))
sketch4.addConstraint(Sketcher.Constraint("Vertical", 17, 3, 21, 3))
sketch4.addConstraint(Sketcher.Constraint("Vertical", 19, 3, 23, 3))
sketch4.addConstraint(Sketcher.Constraint("Vertical", 23, 3, 27, 3))
sketch4.addConstraint(Sketcher.Constraint("Vertical", 25, 3, 29, 3))
sketch4.addConstraint(Sketcher.Constraint("Vertical", 27, 3, 31, 3))
sketch4.addConstraint(Sketcher.Constraint("Vertical", 29, 3, 33, 3))
sketch4.addConstraint(Sketcher.Constraint("Vertical", 21, 3, 35, 3))
sketch4.addConstraint(Sketcher.Constraint("Vertical", 35, 3, 36, 3))
sketch4.addConstraint(Sketcher.Constraint("Diameter", 0, Q("4 mm")))
sketch4.addConstraint(Sketcher.Constraint("Diameter", 35, Q("3 mm")))
sketch4.addConstraint(Sketcher.Constraint("DistanceX", 16, 2, 16, 1, Q("25 mm")))
sketch4.addConstraint(Sketcher.Constraint("DistanceX", 24, 2, 24, 1, Q("20 mm")))
sketch4.addConstraint(Sketcher.Constraint("DistanceX", 1, 3, 0, 3, Q("38 mm")))
sketch4.addConstraint(Sketcher.Constraint("DistanceY", 1, 3, 0, 3, Q("90 mm")))
sketch4.addConstraint(Sketcher.Constraint("DistanceX", 0, 3, 4, 3, Q("10 mm")))
sketch4.addConstraint(Sketcher.Constraint("DistanceX", 4, 3, 8, 3, Q("5 mm")))
sketch4.addConstraint(Sketcher.Constraint("DistanceX", 12, 3, 4, 3, Q("5 mm")))
sketch4.addConstraint(Sketcher.Constraint("DistanceX", 15, 3, 14, 3, Q("15 mm")))
sketch4.addConstraint(Sketcher.Constraint("DistanceY", 19, 3, 15, 3, Q("5 mm")))
sketch4.addConstraint(Sketcher.Constraint("DistanceY", 23, 3, 19, 3, Q("15 mm")))
sketch4.addConstraint(Sketcher.Constraint("DistanceY", 27, 3, 19, 3, Q("5 mm")))
sketch4.addConstraint(Sketcher.Constraint("DistanceY", 23, 3, 31, 3, Q("5 mm")))
sketch4.addConstraint(Sketcher.Constraint("DistanceY", 3, 1, 3, 2, Q("48.63 mm")))
sketch4.addConstraint(Sketcher.Constraint("DistanceX", -1, 1, 0, 3, Q("6.828308 mm")))
sketch4.addConstraint(Sketcher.Constraint("DistanceY", -1, 1, 4, 3, Q("47.59776 mm")))
sketch4.addConstraint(Sketcher.Constraint("DistanceY", 36, 3, -1, 1, Q("29.50224 mm")))
sketch4.addConstraint(Sketcher.Constraint("DistanceY", 15, 3, 14, 3, Q("15.480428 mm")))
sketch4.addConstraint(Sketcher.Constraint("DistanceY", -1, 1, 0, 3, Q("54.108525 mm")))
pocket3 = doc.addObject("PartDesign::Pocket", "Pocket002")
body.addObject(pocket3)
pocket3.Profile = sketch4
pocket3.Length = 6

# Sketch on YZ plane
sketch5 = doc.addObject("Sketcher::SketchObject", "Sketch004")
body.addObject(sketch5)
sketch5.AttachmentSupport = (doc.YZ_Plane, [""])
sketch5.MapMode = "FlatFace"
sketch5.AttachmentOffset = App.Placement(App.Vector(0, 0, 6), App.Rotation())
sketch5.addGeometry(Part.Circle(App.Vector(10, -35, 0), App.Vector(0, 0, 1), 8.5), False)
sketch5.addConstraint(Sketcher.Constraint("Diameter", 0, Q("17 mm")))
sketch5.addConstraint(Sketcher.Constraint("DistanceX", -1, 1, 0, 3, Q("10 mm")))
sketch5.addConstraint(Sketcher.Constraint("DistanceY", 0, 3, -1, 1, Q("35 mm")))
pad2 = doc.addObject("PartDesign::Pad", "Pad001")
body.addObject(pad2)
pad2.Profile = sketch5
pad2.Length = 11
pad2.Reversed = True
doc.recompute()

fillet = doc.addObject("PartDesign::Fillet", "Fillet")
body.addObject(fillet)
fillet.Base = (pad2, edges_at(pad2, [
    (3, 10, 58.109),
    (3, 26.734, 50.968),
    (3, 26.734, -10.802),
    (3, 20.794, -8.884),
    (3, 20.794, -58.884),
    (3, -25.388, -42.059),
    (3, -35, -42.059),
    (3, -35, 58.109),
]))
fillet.Radius = 2

# Sketch on YZ plane
sketch6 = doc.addObject("Sketcher::SketchObject", "Sketch005")
body.addObject(sketch6)
sketch6.AttachmentSupport = (doc.YZ_Plane, [""])
sketch6.MapMode = "FlatFace"
sketch6.AttachmentOffset = App.Placement(App.Vector(0, 0, -5), App.Rotation())
sketch6.addGeometry(Part.Circle(App.Vector(10, -35, 0), App.Vector(0, 0, 1), 7.55), False)
sketch6.addConstraint(Sketcher.Constraint("Diameter", 0, Q("15.1 mm")))
sketch6.addConstraint(Sketcher.Constraint("DistanceX", -1, 1, 0, 3, Q("10 mm")))
sketch6.addConstraint(Sketcher.Constraint("DistanceY", 0, 3, -1, 1, Q("35 mm")))
pocket4 = doc.addObject("PartDesign::Pocket", "Pocket003")
body.addObject(pocket4)
pocket4.Profile = sketch6
pocket4.Length = 5
pocket4.Reversed = True

# Sketch on YZ plane
sketch7 = doc.addObject("Sketcher::SketchObject", "Sketch006")
body.addObject(sketch7)
sketch7.AttachmentSupport = (doc.YZ_Plane, [""])
sketch7.MapMode = "FlatFace"
sketch7.addGeometry(Part.Circle(App.Vector(10, -35, 0), App.Vector(0, 0, 1), 2.95), False)
sketch7.addConstraint(Sketcher.Constraint("Diameter", 0, Q("5.9 mm")))
sketch7.addConstraint(Sketcher.Constraint("DistanceX", -1, 1, 0, 3, Q("10 mm")))
sketch7.addConstraint(Sketcher.Constraint("DistanceY", 0, 3, -1, 1, Q("35 mm")))
pocket5 = doc.addObject("PartDesign::Pocket", "Pocket004")
body.addObject(pocket5)
pocket5.Profile = sketch7
pocket5.Length = 6
pocket5.Reversed = True

doc.recompute()
